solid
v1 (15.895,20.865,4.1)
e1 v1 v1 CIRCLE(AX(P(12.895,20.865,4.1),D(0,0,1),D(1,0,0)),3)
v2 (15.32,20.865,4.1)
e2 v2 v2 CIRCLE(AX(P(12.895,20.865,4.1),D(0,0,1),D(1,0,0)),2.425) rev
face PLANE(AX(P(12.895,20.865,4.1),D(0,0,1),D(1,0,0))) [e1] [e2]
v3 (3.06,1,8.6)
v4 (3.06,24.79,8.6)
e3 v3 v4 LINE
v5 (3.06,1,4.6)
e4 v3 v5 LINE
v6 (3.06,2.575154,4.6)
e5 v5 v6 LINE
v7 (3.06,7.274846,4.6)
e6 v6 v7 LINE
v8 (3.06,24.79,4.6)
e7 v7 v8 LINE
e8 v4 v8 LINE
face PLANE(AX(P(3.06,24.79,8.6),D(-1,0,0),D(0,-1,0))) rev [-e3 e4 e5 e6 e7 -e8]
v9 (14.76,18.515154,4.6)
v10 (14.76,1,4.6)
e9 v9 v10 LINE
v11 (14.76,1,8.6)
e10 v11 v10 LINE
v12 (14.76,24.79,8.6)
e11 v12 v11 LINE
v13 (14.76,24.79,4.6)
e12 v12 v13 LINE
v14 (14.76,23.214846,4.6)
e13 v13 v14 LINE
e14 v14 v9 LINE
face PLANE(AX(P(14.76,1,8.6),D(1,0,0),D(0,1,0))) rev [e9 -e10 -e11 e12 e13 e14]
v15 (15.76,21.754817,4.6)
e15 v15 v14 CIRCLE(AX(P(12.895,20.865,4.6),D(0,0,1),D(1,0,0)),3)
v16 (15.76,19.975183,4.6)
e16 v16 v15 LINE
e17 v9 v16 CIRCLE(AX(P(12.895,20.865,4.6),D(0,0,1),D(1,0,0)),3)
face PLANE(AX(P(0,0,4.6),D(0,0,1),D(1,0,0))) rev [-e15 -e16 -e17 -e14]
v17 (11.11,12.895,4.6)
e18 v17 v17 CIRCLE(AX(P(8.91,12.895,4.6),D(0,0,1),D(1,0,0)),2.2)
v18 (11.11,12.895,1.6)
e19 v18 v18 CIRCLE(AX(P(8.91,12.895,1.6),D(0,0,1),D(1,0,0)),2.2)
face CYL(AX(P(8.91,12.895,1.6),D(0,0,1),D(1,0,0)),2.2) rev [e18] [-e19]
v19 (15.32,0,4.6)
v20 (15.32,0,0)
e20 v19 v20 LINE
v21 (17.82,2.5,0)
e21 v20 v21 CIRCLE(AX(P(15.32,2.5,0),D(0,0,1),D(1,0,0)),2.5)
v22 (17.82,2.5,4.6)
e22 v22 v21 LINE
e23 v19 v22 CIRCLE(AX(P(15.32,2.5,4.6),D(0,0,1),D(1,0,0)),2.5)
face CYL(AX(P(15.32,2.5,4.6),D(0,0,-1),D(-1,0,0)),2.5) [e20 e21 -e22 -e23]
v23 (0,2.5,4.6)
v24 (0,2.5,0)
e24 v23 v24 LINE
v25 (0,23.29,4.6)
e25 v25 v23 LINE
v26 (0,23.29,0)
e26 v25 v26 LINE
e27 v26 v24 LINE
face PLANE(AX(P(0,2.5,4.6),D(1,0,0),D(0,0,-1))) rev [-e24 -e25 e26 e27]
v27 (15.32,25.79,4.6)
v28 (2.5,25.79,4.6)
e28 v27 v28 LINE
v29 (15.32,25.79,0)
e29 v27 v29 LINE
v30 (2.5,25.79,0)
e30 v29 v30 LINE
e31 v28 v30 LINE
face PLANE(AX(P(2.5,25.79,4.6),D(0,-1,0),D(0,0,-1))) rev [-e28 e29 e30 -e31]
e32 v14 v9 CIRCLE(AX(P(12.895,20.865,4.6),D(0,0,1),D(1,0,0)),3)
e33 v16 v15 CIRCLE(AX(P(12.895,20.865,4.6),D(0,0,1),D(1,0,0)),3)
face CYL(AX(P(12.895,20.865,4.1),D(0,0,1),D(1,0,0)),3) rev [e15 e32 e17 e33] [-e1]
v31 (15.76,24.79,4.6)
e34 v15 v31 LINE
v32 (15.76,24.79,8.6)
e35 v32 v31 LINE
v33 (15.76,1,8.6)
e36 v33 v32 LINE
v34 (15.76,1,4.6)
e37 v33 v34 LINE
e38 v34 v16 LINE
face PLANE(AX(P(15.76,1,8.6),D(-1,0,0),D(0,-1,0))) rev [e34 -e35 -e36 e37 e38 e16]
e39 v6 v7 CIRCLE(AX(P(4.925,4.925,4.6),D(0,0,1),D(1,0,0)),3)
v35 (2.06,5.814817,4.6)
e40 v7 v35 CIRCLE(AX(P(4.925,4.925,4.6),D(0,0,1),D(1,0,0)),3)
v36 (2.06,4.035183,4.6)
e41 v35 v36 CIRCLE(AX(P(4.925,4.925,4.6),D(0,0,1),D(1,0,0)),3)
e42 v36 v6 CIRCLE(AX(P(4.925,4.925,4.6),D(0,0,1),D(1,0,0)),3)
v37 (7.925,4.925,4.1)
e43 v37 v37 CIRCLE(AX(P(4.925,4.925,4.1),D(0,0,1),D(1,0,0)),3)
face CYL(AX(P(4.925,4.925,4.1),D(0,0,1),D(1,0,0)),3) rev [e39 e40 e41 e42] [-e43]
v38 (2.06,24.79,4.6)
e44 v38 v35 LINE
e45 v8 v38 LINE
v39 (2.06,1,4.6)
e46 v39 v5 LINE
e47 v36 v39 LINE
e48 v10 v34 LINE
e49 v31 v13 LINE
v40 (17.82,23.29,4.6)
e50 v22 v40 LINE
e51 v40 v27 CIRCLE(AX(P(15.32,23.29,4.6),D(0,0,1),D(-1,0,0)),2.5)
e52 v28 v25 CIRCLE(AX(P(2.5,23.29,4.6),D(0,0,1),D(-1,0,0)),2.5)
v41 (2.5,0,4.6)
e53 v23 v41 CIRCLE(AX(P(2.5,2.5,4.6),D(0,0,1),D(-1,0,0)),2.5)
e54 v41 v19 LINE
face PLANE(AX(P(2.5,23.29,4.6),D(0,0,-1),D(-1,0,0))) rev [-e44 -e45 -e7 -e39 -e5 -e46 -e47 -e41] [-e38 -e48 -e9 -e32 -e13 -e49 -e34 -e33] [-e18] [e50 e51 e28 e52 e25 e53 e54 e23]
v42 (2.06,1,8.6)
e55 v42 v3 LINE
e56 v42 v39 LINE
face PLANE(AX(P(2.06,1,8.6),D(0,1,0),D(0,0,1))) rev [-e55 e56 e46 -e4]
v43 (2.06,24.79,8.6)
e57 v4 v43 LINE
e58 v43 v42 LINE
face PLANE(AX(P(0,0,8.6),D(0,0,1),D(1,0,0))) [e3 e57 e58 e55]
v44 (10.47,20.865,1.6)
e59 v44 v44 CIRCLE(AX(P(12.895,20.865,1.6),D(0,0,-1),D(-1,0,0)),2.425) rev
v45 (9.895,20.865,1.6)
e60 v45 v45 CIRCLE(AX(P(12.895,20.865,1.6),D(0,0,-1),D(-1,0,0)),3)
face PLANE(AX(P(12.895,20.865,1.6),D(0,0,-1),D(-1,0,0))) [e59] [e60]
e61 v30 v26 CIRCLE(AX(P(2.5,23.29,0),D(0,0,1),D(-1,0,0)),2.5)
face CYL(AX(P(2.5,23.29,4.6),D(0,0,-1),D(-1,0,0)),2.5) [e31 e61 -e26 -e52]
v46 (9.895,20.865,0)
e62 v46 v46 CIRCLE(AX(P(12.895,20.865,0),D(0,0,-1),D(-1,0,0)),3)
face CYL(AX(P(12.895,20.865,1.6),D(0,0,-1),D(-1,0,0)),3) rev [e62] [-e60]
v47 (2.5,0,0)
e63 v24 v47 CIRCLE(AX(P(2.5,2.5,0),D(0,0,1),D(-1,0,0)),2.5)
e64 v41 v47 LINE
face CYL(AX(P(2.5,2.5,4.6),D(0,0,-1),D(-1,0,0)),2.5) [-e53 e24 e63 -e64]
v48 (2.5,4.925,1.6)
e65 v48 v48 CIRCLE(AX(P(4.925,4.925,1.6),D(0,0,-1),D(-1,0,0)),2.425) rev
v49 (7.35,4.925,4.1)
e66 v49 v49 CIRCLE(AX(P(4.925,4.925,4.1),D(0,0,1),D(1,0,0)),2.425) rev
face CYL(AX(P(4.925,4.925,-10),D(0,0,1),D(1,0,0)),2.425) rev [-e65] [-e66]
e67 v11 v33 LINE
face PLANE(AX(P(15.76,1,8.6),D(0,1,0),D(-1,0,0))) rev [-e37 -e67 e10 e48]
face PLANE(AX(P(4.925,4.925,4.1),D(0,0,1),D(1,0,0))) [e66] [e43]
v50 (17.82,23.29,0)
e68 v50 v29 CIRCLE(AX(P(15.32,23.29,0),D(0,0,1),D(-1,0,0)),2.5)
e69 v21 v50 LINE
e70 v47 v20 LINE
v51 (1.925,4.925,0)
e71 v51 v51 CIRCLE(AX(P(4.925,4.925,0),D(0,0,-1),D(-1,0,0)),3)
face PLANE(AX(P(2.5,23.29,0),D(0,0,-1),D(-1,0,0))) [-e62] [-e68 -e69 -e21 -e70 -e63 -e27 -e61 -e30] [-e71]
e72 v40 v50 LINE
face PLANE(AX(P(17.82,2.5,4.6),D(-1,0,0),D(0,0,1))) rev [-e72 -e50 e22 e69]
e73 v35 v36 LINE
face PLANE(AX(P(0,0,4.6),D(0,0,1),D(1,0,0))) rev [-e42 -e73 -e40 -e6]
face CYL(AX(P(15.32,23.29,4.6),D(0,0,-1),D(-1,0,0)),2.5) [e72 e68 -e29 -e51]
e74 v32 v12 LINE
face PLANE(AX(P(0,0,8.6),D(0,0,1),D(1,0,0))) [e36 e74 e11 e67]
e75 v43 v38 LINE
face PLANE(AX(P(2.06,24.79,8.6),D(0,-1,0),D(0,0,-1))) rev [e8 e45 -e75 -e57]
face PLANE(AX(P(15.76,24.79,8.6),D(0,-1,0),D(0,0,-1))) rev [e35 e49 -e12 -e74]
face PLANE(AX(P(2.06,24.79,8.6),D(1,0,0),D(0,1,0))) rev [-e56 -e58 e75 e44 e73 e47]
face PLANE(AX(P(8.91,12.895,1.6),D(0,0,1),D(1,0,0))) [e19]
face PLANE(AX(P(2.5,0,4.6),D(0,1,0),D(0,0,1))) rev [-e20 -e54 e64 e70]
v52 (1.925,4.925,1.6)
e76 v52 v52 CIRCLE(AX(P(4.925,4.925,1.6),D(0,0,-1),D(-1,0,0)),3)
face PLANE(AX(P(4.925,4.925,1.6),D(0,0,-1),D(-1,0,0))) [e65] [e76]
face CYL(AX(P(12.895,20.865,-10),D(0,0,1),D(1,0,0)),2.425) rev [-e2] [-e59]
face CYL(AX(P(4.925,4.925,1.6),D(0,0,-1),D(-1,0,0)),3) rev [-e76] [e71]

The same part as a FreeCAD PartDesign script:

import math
import FreeCAD as App
import Part
import Sketcher

V = App.Vector


def add_polygon(sketch, points):
    """Adds a closed chain of lines whose ends are joined by coincident constraints."""
    first, n = sketch.GeometryCount, len(points)
    for a, b in zip(points, points[1:] + points[:1]):
        sketch.addGeometry(Part.LineSegment(App.Vector(*a, 0), App.Vector(*b, 0)), False)
    for i in range(n):
        sketch.addConstraint(Sketcher.Constraint("Coincident", first + i, 2, first + (i + 1) % n, 1))

doc = App.newDocument("Part")
body = doc.addObject("PartDesign::Body", "Body")

# Sketch on XY plane
sketch1 = body.newObject("Sketcher::SketchObject", "Sketch")
sketch1.AttachmentSupport = (doc.getObject("XY_Plane"), [""])
sketch1.MapMode = "FlatFace"
sketch1.addGeometry(Part.LineSegment(V(2.5, 0, 0), V(15.3, 0, 0)), False)
sketch1.addGeometry(Part.ArcOfCircle(Part.Circle(V(15.3, 2.5, 0), V(0, 0, 1), 2.5), math.radians(-90), math.radians(0)), False)
sketch1.addGeometry(Part.LineSegment(V(17.8, 2.5, 0), V(17.8, 23.3, 0)), False)
sketch1.addGeometry(Part.ArcOfCircle(Part.Circle(V(15.3, 23.3, 0), V(0, 0, 1), 2.5), math.radians(0), math.radians(90)), False)
sketch1.addGeometry(Part.LineSegment(V(15.3, 25.8, 0), V(2.5, 25.8, 0)), False)
sketch1.addGeometry(Part.ArcOfCircle(Part.Circle(V(2.5, 23.3, 0), V(0, 0, 1), 2.5), math.radians(90), math.radians(180)), False)
sketch1.addGeometry(Part.LineSegment(V(0, 23.3, 0), V(0, 2.5, 0)), False)
sketch1.addGeometry(Part.ArcOfCircle(Part.Circle(V(2.5, 2.5, 0), V(0, 0, 1), 2.5), math.radians(180), math.radians(270)), False)
sketch1.addConstraint(Sketcher.Constraint("Tangent", 0, 2, 1, 1))
sketch1.addConstraint(Sketcher.Constraint("Tangent", 1, 2, 2, 1))
sketch1.addConstraint(Sketcher.Constraint("Tangent", 2, 2, 3, 1))
sketch1.addConstraint(Sketcher.Constraint("Tangent", 3, 2, 4, 1))
sketch1.addConstraint(Sketcher.Constraint("Tangent", 4, 2, 5, 1))
sketch1.addConstraint(Sketcher.Constraint("Tangent", 5, 2, 6, 1))
sketch1.addConstraint(Sketcher.Constraint("Tangent", 6, 2, 7, 1))
sketch1.addConstraint(Sketcher.Constraint("Tangent", 7, 2, 0, 1))
sketch1.addConstraint(Sketcher.Constraint("Horizontal", 0))
sketch1.addConstraint(Sketcher.Constraint("Vertical", 2))
sketch1.addConstraint(Sketcher.Constraint("Horizontal", 4))
sketch1.addConstraint(Sketcher.Constraint("Vertical", 6))
sketch1.addConstraint(Sketcher.Constraint("Equal", 1, 3))
sketch1.addConstraint(Sketcher.Constraint("Equal", 3, 5))
sketch1.addConstraint(Sketcher.Constraint("Equal", 5, 7))
sketch1.addConstraint(Sketcher.Constraint("PointOnObject", 0, 2, -1))
sketch1.addConstraint(Sketcher.Constraint("PointOnObject", 5, 2, -2))
sketch1.addConstraint(Sketcher.Constraint("Radius", 1, 2.5))
sketch1.addConstraint(Sketcher.Constraint("DistanceX", 0, 1, 0, 2, 12.82))
sketch1.addConstraint(Sketcher.Constraint("DistanceY", 2, 1, 2, 2, 20.79))
pad1 = body.newObject("PartDesign::Pad", "Pad")
pad1.Profile = sketch1
pad1.Length = 4.6

# Sketch on XY plane
sketch2 = body.newObject("Sketcher::SketchObject", "Sketch001")
sketch2.AttachmentSupport = (doc.getObject("XY_Plane"), [""])
sketch2.MapMode = "FlatFace"
sketch2.AttachmentOffset = App.Placement(V(0, 0, 4.6), App.Rotation())
sketch2.addGeometry(Part.Circle(V(4.9, 4.9, 0), V(0, 0, 1), 2.4), False)
sketch2.addGeometry(Part.Circle(V(12.9, 20.9, 0), V(0, 0, 1), 2.4), False)
sketch2.addConstraint(Sketcher.Constraint("Equal", 0, 1))
sketch2.addConstraint(Sketcher.Constraint("Diameter", 0, 4.85))
sketch2.addConstraint(Sketcher.Constraint("DistanceX", 0, 3, 1, 3, 7.97))
sketch2.addConstraint(Sketcher.Constraint("DistanceY", 0, 3, 1, 3, 15.94))
sketch2.addConstraint(Sketcher.Constraint("DistanceX", -1, 1, 0, 3, 4.925))
sketch2.addConstraint(Sketcher.Constraint("DistanceY", -1, 1, 0, 3, 4.925))
pocket1 = body.newObject("PartDesign::Pocket", "Pocket")
pocket1.Profile = sketch2
pocket1.Length = 14.6

# Sketch on XY plane
sketch3 = body.newObject("Sketcher::SketchObject", "Sketch002")
sketch3.AttachmentSupport = (doc.getObject("XY_Plane"), [""])
sketch3.MapMode = "FlatFace"
sketch3.addGeometry(Part.Circle(V(12.9, 20.9, 0), V(0, 0, 1), 3), False)
sketch3.addGeometry(Part.Circle(V(4.9, 4.9, 0), V(0, 0, 1), 3), False)
sketch3.addConstraint(Sketcher.Constraint("Equal", 0, 1))
sketch3.addConstraint(Sketcher.Constraint("Diameter", 0, 6.0))
sketch3.addConstraint(Sketcher.Constraint("DistanceX", 1, 3, 0, 3, 7.97))
sketch3.addConstraint(Sketcher.Constraint("DistanceY", 1, 3, 0, 3, 15.94))
sketch3.addConstraint(Sketcher.Constraint("DistanceX", -1, 1, 0, 3, 12.895))
sketch3.addConstraint(Sketcher.Constraint("DistanceY", -1, 1, 0, 3, 20.865))
pocket2 = body.newObject("PartDesign::Pocket", "Pocket001")
pocket2.Profile = sketch3
pocket2.Length = 1.6
pocket2.Reversed = True

# Sketch on XY plane
sketch4 = body.newObject("Sketcher::SketchObject", "Sketch003")
sketch4.AttachmentSupport = (doc.getObject("XY_Plane"), [""])
sketch4.MapMode = "FlatFace"
sketch4.AttachmentOffset = App.Placement(V(0, 0, 4.6), App.Rotation())
sketch4.addGeometry(Part.Circle(V(4.9, 4.9, 0), V(0, 0, 1), 3), False)
sketch4.addGeometry(Part.Circle(V(12.9, 20.9, 0), V(0, 0, 1), 3), False)
sketch4.addConstraint(Sketcher.Constraint("Equal", 0, 1))
sketch4.addConstraint(Sketcher.Constraint("Diameter", 0, 6.0))
sketch4.addConstraint(Sketcher.Constraint("DistanceX", 0, 3, 1, 3, 7.97))
sketch4.addConstraint(Sketcher.Constraint("DistanceY", 0, 3, 1, 3, 15.94))
sketch4.addConstraint(Sketcher.Constraint("DistanceX", -1, 1, 0, 3, 4.925))
sketch4.addConstraint(Sketcher.Constraint("DistanceY", -1, 1, 0, 3, 4.925))
pocket3 = body.newObject("PartDesign::Pocket", "Pocket002")
pocket3.Profile = sketch4
pocket3.Length = 0.5

# Sketch on XY plane
sketch5 = body.newObject("Sketcher::SketchObject", "Sketch004")
sketch5.AttachmentSupport = (doc.getObject("XY_Plane"), [""])
sketch5.MapMode = "FlatFace"
sketch5.AttachmentOffset = App.Placement(V(0, 0, 4.6), App.Rotation())
sketch5.addGeometry(Part.Circle(V(8.9, 12.9, 0), V(0, 0, 1), 2.2), False)
sketch5.addConstraint(Sketcher.Constraint("Diameter", 0, 4.4))
sketch5.addConstraint(Sketcher.Constraint("DistanceX", -1, 1, 0, 3, 8.91))
sketch5.addConstraint(Sketcher.Constraint("DistanceY", -1, 1, 0, 3, 12.895))
pocket4 = body.newObject("PartDesign::Pocket", "Pocket003")
pocket4.Profile = sketch5
pocket4.Length = 3

# Sketch on XY plane
sketch6 = body.newObject("Sketcher::SketchObject", "Sketch005")
sketch6.AttachmentSupport = (doc.getObject("XY_Plane"), [""])
sketch6.MapMode = "FlatFace"
sketch6.AttachmentOffset = App.Placement(V(0, 0, 4.6), App.Rotation())
add_polygon(sketch6, [(2.1, 24.8), (2.1, 1), (3.1, 1), (3.1, 24.8)])  # lines 0-3
add_polygon(sketch6, [(14.8, 24.8), (14.8, 1), (15.8, 1), (15.8, 24.8)])  # lines 4-7
sketch6.addConstraint(Sketcher.Constraint("Vertical", 0))
sketch6.addConstraint(Sketcher.Constraint("Horizontal", 1))
sketch6.addConstraint(Sketcher.Constraint("Vertical", 2))
sketch6.addConstraint(Sketcher.Constraint("Horizontal", 3))
sketch6.addConstraint(Sketcher.Constraint("Vertical", 4))
sketch6.addConstraint(Sketcher.Constraint("Horizontal", 5))
sketch6.addConstraint(Sketcher.Constraint("Vertical", 6))
sketch6.addConstraint(Sketcher.Constraint("Horizontal", 7))
sketch6.addConstraint(Sketcher.Constraint("Horizontal", 1, 2, 4, 2))
sketch6.addConstraint(Sketcher.Constraint("Horizontal", 3, 2, 6, 2))
sketch6.addConstraint(Sketcher.Constraint("Equal", 3, 5))
sketch6.addConstraint(Sketcher.Constraint("DistanceX", 1, 1, 1, 2, 1.0))
sketch6.addConstraint(Sketcher.Constraint("DistanceY", -1, 1, 0, 2, 1.0))
sketch6.addConstraint(Sketcher.Constraint("DistanceY", 0, 2, 0, 1, 23.79))
sketch6.addConstraint(Sketcher.Constraint("DistanceX", 1, 2, 4, 2, 11.7))
sketch6.addConstraint(Sketcher.Constraint("DistanceX", -1, 1, 0, 2, 2.06))
pad2 = body.newObject("PartDesign::Pad", "Pad001")
pad2.Profile = sketch6
pad2.Length = 4

doc.recompute()
